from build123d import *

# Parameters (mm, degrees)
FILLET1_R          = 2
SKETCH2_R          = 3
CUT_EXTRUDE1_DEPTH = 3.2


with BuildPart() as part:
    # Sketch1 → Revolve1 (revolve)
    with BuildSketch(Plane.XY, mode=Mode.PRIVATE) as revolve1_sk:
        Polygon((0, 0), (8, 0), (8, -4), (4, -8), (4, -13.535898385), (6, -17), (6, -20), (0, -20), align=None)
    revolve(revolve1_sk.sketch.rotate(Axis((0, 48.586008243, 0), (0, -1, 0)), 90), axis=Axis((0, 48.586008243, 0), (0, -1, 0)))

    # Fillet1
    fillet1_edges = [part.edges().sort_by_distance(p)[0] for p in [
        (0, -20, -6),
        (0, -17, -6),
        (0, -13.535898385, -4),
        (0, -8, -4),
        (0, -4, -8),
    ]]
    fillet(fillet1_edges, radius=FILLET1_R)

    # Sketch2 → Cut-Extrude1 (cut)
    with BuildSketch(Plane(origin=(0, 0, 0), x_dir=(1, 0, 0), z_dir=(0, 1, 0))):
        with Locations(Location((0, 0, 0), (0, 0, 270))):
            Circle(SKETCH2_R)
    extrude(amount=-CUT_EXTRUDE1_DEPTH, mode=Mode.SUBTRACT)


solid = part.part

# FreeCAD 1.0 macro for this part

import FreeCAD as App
import Part
import Sketcher

V = App.Vector
Q = App.Units.Quantity


def edges_at(feature, points):
    """Names of the edges that pass closest to the given points."""
    edges = feature.Shape.Edges
    near = lambda p: min(range(len(edges)), key=lambda i: edges[i].distToShape(Part.Vertex(*p))[0])
    return sorted({f"Edge{near(p) + 1}" for p in points})


def add_polygon(sketch, points):
    """Adds a closed chain of lines whose ends are joined by coincident constraints."""
    first, n = sketch.GeometryCount, len(points)
    for a, b in zip(points, points[1:] + points[:1]):
        sketch.addGeometry(Part.LineSegment(App.Vector(*a, 0), App.Vector(*b, 0)), False)
    for i in range(n):
        sketch.addConstraint(Sketcher.Constraint("Coincident", first + i, 2, first + (i + 1) % n, 1))

doc = App.newDocument("Part")
body = doc.addObject("PartDesign::Body", "Body")

sketch1 = body.newObject("Sketcher::SketchObject", "Sketch")
sketch1.AttachmentSupport = (doc.getObject("XY_Plane"), [""])
sketch1.MapMode = "FlatFace"
add_polygon(sketch1, [(8, 0), (0, 0), (0, -20), (6, -20), (6, -17), (4, -13.5), (4, -8), (8, -4)])
sketch1.addConstraint([
    Sketcher.Constraint("Horizontal", 0),
    Sketcher.Constraint("Vertical", 1),
    Sketcher.Constraint("Horizontal", 2),
    Sketcher.Constraint("Vertical", 3),
    Sketcher.Constraint("Vertical", 5),
    Sketcher.Constraint("Vertical", 7),
    Sketcher.Constraint("Coincident", 0, 2, -1, 1),
    Sketcher.Constraint("DistanceX", 0, 2, 0, 1, 8.0),
    Sketcher.Constraint("DistanceX", 2, 1, 2, 2, 6.0),
    Sketcher.Constraint("DistanceY", 1, 2, 1, 1, 20.0),
    Sketcher.Constraint("DistanceY", 3, 1, 3, 2, 3.0),
    Sketcher.Constraint("DistanceY", 7, 1, 7, 2, 4.0),
    Sketcher.Constraint("Angle", 4, Q("120 deg")),
    Sketcher.Constraint("Angle", 6, Q("45 deg")),
    Sketcher.Constraint("Distance", 4, 4.0),
])
revolution = body.newObject("PartDesign::Revolution", "Revolution")
revolution.Profile = sketch1
revolution.ReferenceAxis = (sketch1, ["V_Axis"])
revolution.Angle = 360
doc.recompute()

fillet = body.newObject("PartDesign::Fillet", "Fillet")
fillet.Base = (revolution, edges_at(revolution, [
    (0, -20, -6),
    (0, -17, -6),
    (0, -13.536, -4),
    (0, -8, -4),
    (0, -4, -8),
]))
fillet.Radius = 2

sketch2 = body.newObject("Sketcher::SketchObject", "Sketch001")
sketch2.AttachmentSupport = (doc.getObject("XZ_Plane"), [""])
sketch2.MapMode = "FlatFace"
sketch2.addGeometry(Part.Circle(V(0, 0, 0), V(0, 0, 1), 3), False)
sketch2.addConstraint([
    Sketcher.Constraint("Coincident", 0, 3, -1, 1),
    Sketcher.Constraint("Diameter", 0, 6.0),
])
pocket1 = body.newObject("PartDesign::Pocket", "Pocket")
pocket1.Profile = sketch2
pocket1.Length = 3.2
pocket1.Reversed = True

doc.recompute()
